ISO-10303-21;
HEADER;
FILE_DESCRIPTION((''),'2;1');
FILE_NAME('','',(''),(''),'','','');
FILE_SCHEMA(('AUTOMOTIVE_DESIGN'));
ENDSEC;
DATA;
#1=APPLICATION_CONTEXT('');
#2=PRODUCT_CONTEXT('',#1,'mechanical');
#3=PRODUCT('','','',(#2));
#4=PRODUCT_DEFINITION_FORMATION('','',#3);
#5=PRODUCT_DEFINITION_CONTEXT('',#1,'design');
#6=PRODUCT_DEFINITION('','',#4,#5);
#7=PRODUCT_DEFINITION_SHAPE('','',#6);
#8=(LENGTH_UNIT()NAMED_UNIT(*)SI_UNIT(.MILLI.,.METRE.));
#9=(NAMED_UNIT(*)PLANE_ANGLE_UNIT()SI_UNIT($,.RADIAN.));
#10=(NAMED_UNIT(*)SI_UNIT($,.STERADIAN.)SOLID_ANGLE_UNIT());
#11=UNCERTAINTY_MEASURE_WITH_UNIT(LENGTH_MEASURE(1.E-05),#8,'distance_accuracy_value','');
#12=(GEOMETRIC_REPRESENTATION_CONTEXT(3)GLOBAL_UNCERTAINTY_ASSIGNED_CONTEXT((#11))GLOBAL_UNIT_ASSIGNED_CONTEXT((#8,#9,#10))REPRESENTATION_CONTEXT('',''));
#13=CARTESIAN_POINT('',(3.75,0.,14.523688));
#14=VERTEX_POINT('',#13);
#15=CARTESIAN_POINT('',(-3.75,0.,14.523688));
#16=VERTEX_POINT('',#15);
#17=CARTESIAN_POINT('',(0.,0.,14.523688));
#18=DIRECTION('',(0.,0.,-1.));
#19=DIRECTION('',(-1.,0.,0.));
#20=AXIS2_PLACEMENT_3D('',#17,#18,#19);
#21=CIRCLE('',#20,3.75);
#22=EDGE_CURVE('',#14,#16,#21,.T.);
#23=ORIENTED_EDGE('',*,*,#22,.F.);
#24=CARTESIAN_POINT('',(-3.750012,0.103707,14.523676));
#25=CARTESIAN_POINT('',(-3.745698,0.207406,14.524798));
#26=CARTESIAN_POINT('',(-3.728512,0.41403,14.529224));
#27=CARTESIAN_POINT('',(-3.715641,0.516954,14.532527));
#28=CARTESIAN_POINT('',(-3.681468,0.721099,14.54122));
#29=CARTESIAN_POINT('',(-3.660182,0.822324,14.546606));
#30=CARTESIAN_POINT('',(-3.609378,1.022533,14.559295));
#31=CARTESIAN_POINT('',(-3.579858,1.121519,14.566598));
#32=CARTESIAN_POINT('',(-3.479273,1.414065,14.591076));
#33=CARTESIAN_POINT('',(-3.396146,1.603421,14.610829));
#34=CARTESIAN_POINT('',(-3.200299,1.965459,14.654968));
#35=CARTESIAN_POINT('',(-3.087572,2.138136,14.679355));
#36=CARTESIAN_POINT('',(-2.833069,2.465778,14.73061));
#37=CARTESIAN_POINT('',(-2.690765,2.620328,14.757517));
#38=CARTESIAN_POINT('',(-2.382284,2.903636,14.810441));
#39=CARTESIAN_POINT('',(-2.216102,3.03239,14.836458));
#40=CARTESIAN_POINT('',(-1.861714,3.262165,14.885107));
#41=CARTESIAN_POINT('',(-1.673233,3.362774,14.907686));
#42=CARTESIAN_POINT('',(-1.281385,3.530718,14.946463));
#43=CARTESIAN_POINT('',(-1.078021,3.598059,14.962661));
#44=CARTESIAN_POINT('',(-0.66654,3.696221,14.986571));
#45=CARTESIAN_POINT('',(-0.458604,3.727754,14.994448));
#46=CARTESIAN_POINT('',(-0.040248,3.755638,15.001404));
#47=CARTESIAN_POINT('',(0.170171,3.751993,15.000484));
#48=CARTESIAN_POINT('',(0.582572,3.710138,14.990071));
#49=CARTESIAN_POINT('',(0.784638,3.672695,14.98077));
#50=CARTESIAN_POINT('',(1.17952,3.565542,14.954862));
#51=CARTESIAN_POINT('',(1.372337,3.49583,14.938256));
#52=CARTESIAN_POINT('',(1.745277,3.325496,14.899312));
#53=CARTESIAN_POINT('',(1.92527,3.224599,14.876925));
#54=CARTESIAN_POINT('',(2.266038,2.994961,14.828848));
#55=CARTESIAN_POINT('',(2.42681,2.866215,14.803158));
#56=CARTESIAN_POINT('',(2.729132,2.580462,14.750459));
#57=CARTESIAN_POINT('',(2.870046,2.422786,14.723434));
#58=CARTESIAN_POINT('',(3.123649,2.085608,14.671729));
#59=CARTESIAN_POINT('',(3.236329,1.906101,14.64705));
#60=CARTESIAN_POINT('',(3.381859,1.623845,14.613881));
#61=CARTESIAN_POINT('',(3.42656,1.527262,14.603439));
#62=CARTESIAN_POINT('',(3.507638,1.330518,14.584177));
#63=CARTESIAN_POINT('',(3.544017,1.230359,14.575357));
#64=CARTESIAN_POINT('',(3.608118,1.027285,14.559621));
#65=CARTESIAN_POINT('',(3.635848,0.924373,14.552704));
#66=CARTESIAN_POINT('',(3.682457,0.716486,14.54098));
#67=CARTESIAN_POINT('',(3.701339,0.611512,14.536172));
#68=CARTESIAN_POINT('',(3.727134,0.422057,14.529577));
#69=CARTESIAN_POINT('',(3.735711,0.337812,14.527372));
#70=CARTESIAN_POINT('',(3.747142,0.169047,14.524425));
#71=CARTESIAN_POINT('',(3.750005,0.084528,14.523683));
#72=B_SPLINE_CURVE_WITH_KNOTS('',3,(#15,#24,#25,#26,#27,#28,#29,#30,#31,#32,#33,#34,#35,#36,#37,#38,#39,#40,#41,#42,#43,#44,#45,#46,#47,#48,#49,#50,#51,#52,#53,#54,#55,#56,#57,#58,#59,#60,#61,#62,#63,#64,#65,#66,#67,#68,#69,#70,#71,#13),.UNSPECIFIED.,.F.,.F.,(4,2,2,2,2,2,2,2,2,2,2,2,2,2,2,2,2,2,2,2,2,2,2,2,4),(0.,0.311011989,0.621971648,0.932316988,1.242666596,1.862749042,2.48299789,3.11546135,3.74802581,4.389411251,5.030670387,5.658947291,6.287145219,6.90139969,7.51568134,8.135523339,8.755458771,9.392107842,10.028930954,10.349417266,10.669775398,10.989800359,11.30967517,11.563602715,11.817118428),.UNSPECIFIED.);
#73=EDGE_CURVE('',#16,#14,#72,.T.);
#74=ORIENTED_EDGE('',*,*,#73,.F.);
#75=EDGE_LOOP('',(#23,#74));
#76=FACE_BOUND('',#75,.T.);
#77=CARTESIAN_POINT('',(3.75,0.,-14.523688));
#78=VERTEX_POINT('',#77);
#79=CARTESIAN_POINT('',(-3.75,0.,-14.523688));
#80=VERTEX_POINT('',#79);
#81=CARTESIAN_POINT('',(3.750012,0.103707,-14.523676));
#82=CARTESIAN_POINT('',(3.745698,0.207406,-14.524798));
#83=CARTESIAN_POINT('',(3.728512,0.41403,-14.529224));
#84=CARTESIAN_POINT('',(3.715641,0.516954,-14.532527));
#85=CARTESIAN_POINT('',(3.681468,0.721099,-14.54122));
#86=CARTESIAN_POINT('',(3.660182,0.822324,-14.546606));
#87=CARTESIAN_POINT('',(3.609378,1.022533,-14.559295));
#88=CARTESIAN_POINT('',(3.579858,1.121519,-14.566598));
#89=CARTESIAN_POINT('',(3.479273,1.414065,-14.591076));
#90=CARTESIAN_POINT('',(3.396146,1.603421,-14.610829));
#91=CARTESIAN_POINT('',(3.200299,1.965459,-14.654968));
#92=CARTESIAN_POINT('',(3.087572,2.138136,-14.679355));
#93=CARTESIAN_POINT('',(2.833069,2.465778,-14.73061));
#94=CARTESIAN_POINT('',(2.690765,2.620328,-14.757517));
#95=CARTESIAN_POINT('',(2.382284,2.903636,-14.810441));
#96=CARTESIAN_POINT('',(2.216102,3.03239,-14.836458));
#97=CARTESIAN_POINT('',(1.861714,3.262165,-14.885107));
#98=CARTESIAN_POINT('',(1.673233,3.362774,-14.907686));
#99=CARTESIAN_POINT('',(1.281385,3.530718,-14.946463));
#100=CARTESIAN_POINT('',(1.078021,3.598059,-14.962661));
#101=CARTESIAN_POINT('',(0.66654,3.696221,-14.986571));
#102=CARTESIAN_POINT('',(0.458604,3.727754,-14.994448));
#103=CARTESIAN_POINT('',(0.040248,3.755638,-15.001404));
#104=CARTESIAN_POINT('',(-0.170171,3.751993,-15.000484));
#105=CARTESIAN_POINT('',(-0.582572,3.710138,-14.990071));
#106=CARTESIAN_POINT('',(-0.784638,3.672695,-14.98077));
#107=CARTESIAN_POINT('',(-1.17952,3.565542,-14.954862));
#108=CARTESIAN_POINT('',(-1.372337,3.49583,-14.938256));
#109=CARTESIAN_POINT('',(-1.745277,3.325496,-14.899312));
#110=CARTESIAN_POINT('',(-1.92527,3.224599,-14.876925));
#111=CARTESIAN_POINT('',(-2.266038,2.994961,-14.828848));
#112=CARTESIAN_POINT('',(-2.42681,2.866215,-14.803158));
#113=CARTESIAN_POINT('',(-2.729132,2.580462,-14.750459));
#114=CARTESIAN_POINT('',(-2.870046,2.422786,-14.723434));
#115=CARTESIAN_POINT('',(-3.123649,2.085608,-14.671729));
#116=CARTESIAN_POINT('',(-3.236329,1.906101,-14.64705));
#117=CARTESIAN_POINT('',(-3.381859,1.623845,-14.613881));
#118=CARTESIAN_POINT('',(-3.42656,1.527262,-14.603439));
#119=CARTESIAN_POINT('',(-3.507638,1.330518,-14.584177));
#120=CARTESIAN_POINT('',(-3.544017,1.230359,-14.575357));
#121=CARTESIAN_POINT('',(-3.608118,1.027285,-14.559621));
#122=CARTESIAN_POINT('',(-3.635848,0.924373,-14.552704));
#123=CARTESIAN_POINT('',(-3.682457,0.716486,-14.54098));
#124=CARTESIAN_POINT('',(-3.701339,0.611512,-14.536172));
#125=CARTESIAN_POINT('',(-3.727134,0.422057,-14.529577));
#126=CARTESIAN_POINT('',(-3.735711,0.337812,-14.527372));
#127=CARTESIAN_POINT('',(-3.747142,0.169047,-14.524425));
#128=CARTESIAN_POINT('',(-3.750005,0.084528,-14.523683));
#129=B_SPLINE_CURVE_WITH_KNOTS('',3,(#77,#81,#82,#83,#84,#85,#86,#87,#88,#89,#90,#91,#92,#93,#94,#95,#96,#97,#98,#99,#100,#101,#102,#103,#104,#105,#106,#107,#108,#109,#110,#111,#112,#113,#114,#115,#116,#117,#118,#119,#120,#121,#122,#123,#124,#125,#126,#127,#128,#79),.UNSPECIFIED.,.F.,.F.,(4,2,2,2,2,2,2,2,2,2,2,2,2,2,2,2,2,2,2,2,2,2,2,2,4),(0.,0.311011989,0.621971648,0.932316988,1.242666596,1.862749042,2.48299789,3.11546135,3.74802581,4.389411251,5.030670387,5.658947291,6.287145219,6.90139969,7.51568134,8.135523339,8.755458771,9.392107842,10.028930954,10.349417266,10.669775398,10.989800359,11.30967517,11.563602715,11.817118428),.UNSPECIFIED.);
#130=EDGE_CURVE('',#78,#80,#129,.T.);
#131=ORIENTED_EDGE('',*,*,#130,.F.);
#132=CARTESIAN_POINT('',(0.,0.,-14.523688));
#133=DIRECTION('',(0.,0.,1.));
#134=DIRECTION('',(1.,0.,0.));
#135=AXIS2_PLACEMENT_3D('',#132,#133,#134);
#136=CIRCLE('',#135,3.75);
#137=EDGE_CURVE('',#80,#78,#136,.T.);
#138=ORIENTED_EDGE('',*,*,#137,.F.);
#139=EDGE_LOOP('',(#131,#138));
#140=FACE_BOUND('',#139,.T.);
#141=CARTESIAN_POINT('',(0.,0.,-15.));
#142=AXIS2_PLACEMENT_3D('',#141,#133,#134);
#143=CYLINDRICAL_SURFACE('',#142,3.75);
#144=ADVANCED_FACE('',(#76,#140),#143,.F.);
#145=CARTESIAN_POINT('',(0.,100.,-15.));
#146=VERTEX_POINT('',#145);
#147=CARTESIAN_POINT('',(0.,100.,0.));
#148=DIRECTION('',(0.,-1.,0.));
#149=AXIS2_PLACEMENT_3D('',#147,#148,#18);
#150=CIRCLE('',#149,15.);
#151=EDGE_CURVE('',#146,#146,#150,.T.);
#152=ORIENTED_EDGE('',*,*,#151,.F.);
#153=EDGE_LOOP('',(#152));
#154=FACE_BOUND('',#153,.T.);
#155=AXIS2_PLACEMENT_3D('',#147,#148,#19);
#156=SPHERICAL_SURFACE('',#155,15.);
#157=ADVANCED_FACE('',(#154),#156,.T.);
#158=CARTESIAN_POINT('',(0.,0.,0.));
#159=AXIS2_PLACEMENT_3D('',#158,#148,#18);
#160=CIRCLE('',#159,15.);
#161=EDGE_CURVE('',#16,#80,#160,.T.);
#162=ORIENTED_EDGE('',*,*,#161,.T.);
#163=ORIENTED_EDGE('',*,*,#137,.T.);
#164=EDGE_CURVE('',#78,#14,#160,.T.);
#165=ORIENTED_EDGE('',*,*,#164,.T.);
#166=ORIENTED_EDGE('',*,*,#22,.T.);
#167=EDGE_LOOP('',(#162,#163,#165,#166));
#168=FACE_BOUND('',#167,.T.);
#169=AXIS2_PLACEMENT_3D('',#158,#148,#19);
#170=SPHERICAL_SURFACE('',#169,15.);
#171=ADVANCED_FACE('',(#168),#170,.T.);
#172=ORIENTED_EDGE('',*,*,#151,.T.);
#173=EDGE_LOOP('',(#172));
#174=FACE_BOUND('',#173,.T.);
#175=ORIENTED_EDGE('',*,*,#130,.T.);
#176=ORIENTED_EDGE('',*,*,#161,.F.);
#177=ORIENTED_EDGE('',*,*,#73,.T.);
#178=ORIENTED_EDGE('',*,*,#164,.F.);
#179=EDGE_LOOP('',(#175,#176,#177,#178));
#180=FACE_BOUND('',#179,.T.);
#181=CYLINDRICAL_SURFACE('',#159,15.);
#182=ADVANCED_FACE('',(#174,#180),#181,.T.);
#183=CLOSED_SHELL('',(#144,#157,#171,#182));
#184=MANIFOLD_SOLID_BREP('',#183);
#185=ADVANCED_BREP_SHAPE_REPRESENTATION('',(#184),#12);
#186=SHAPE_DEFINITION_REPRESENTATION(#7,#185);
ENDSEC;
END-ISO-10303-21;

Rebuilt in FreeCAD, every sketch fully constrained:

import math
import FreeCAD as App
import Part
import Sketcher
Q = App.Units.Quantity

doc = App.newDocument("Part")
params = doc.addObject("Spreadsheet::Sheet", "Params")
for row, (alias, value) in enumerate([
    ("sketch1_radius", "15 mm"),
    ("sketch1_height", "100 mm"),
    ("revolution_angle", "360 deg"),
    ("sketch2_diameter", "7.5 mm"),
], start=1):
    params.set(f"A{row}", alias)
    params.set(f"B{row}", "=" + value)
    params.setAlias(f"B{row}", alias)

body = doc.addObject("PartDesign::Body", "Body")

sketch1 = body.newObject("Sketcher::SketchObject", "Sketch")
sketch1.AttachmentSupport = (doc.getObject("XY_Plane"), [""])
sketch1.MapMode = "FlatFace"
sketch1.addGeometry([
    Part.LineSegment(App.Vector(-15, 100, 0), App.Vector(-15, 0, 0)),
    Part.ArcOfCircle(Part.Circle(App.Vector(0, 0, 0), App.Vector(0, 0, 1), 15), math.radians(180), math.radians(270)),
    Part.LineSegment(App.Vector(0, -15, 0), App.Vector(0, 115, 0)),
    Part.ArcOfCircle(Part.Circle(App.Vector(0, 100, 0), App.Vector(0, 0, 1), 15), math.radians(90), math.radians(180)),
], False)
sketch1.addConstraint([
    Sketcher.Constraint("Tangent", 0, 2, 1, 1),
    Sketcher.Constraint("Coincident", 1, 2, 2, 1),
    Sketcher.Constraint("Coincident", 2, 2, 3, 1),
    Sketcher.Constraint("Tangent", 3, 2, 0, 1),
    Sketcher.Constraint("Vertical", 0),
    Sketcher.Constraint("Vertical", 2),
    Sketcher.Constraint("Coincident", 1, 3, -1, 1),
    Sketcher.Constraint("Equal", 1, 3),
    Sketcher.Constraint("PointOnObject", 1, 2, -2),
    Sketcher.Constraint("Radius", 1, Q("15 mm")),
    Sketcher.Constraint("DistanceY", 0, 2, 0, 1, Q("100 mm")),
])
sketch1.setExpression("Constraints[9]", "Params.sketch1_radius")
sketch1.setExpression("Constraints[10]", "Params.sketch1_height")
revolution = body.newObject("PartDesign::Revolution", "Revolution")
revolution.Profile = sketch1
revolution.ReferenceAxis = (sketch1, ["V_Axis"])
revolution.setExpression("Angle", "Params.revolution_angle")

sketch2 = body.newObject("Sketcher::SketchObject", "Sketch001")
sketch2.AttachmentSupport = (doc.getObject("XY_Plane"), [""])
sketch2.MapMode = "FlatFace"
sketch2.addGeometry(Part.Circle(App.Vector(0, 0, 0), App.Vector(0, 0, 1), 3.8), False)
sketch2.addConstraint([
    Sketcher.Constraint("Coincident", 0, 3, -1, 1),
    Sketcher.Constraint("Diameter", 0, Q("7.5 mm")),
])
sketch2.setExpression("Constraints[1]", "Params.sketch2_diameter")
pocket1 = body.newObject("PartDesign::Pocket", "Pocket")
pocket1.Profile = sketch2
pocket1.Type = "ThroughAll"
pocket1.Midplane = True

doc.recompute()
